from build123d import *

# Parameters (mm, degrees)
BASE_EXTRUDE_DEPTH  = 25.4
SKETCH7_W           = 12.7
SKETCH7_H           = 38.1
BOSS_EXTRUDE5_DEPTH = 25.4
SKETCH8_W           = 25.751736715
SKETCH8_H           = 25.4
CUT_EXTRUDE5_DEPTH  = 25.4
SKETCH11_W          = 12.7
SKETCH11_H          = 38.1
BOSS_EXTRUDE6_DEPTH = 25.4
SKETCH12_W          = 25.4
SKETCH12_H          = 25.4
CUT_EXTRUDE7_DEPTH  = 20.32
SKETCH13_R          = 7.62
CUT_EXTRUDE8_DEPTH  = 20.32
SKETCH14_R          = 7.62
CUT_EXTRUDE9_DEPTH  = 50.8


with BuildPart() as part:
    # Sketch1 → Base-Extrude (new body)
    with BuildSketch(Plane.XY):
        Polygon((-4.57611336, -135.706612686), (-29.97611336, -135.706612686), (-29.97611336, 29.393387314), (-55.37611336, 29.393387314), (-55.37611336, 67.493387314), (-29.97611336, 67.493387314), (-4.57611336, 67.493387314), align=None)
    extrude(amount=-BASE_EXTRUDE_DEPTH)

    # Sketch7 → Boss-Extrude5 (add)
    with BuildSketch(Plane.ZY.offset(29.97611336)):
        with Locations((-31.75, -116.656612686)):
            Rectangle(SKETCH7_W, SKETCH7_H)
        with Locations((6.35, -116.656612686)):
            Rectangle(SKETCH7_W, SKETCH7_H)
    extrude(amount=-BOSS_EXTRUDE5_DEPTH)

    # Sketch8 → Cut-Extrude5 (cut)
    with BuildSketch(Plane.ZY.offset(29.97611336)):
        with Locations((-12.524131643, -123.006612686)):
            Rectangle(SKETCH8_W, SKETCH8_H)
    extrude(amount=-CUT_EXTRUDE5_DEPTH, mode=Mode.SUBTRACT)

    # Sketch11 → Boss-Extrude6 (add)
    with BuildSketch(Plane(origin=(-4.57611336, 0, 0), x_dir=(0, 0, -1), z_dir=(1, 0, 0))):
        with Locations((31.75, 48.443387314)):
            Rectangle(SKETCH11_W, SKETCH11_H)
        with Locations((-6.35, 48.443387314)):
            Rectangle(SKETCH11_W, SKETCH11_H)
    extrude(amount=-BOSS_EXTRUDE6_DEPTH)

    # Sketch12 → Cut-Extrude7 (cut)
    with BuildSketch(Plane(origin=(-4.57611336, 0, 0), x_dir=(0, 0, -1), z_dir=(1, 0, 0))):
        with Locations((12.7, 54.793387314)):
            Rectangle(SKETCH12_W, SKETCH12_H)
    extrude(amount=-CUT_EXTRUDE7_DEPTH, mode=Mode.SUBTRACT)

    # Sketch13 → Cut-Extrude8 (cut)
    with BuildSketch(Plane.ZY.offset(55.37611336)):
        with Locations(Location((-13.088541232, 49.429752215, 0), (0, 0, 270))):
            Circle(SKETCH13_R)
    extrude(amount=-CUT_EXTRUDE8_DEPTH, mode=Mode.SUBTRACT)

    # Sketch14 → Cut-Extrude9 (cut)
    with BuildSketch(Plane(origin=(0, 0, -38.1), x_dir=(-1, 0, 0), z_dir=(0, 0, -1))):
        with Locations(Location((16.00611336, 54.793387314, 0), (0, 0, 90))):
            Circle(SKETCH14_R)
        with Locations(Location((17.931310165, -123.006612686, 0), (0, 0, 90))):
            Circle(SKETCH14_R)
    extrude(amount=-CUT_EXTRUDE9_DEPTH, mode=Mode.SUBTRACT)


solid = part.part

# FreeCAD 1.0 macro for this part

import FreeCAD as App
import Part
import Sketcher
from FreeCAD import Vector
Q = App.Units.Quantity


def add_polygon(sketch, points):
    """Adds a closed chain of lines whose ends are joined by coincident constraints."""
    first, n = sketch.GeometryCount, len(points)
    for a, b in zip(points, points[1:] + points[:1]):
        sketch.addGeometry(Part.LineSegment(App.Vector(*a, 0), App.Vector(*b, 0)), False)
    for i in range(n):
        sketch.addConstraint(Sketcher.Constraint("Coincident", first + i, 2, first + (i + 1) % n, 1))

doc = App.newDocument("Part")
body = doc.addObject("PartDesign::Body", "Body")

# Sketch on XY plane
sketch1 = body.newObject("Sketcher::SketchObject", "Sketch")
sketch1.AttachmentSupport = (doc.getObject("XY_Plane"), [""])
sketch1.MapMode = "FlatFace"
add_polygon(sketch1, [(-29.976113, -135.706613), (-4.576113, -135.706613), (-4.576113, 67.493387), (-55.376113, 67.493387), (-55.376113, 29.393387), (-29.976113, 29.393387)])  # lines 0-5
sketch1.addConstraint([
    Sketcher.Constraint("Horizontal", 0),
    Sketcher.Constraint("Vertical", 1),
    Sketcher.Constraint("Horizontal", 2),
    Sketcher.Constraint("Vertical", 3),
    Sketcher.Constraint("Horizontal", 4),
    Sketcher.Constraint("Vertical", 5),
    Sketcher.Constraint("Equal", 0, 4),
    Sketcher.Constraint("DistanceX", 0, 1, 0, 2, Q("1 in")),
    Sketcher.Constraint("DistanceY", 1, 1, 1, 2, Q("8 in")),
    Sketcher.Constraint("DistanceY", 3, 2, 3, 1, Q("1.5 in")),
    Sketcher.Constraint("DistanceX", 0, 2, -1, 1, Q("4.576113 mm")),
    Sketcher.Constraint("DistanceY", 0, 2, -1, 1, Q("135.706613 mm")),
])
pad1 = body.newObject("PartDesign::Pad", "Pad")
pad1.Profile = sketch1
pad1.Length = Q("1 in")
pad1.Reversed = True

# Sketch on YZ plane
sketch2 = body.newObject("Sketcher::SketchObject", "Sketch001")
sketch2.AttachmentSupport = (doc.getObject("YZ_Plane"), [""])
sketch2.MapMode = "FlatFace"
sketch2.AttachmentOffset = App.Placement(Vector(0, 0, -29.976113), App.Rotation())
add_polygon(sketch2, [(-97.606613, -38.1), (-135.706613, -38.1), (-135.706613, -25.4), (-97.606613, -25.4)])  # lines 0-3
add_polygon(sketch2, [(-97.606613, 0), (-135.706613, 0), (-135.706613, 12.7), (-97.606613, 12.7)])  # lines 4-7
sketch2.addConstraint([
    Sketcher.Constraint("Horizontal", 0),
    Sketcher.Constraint("Vertical", 1),
    Sketcher.Constraint("Horizontal", 2),
    Sketcher.Constraint("Vertical", 3),
    Sketcher.Constraint("Horizontal", 4),
    Sketcher.Constraint("Vertical", 5),
    Sketcher.Constraint("Horizontal", 6),
    Sketcher.Constraint("Vertical", 7),
    Sketcher.Constraint("PointOnObject", 4, 2, -1),
    Sketcher.Constraint("Vertical", 1, 2, 4, 2),
    Sketcher.Constraint("Vertical", 3, 2, 6, 2),
    Sketcher.Constraint("Equal", 3, 5),
    Sketcher.Constraint("DistanceX", 0, 2, 0, 1, Q("1.5 in")),
    Sketcher.Constraint("DistanceY", 1, 1, 1, 2, Q("0.5 in")),
    Sketcher.Constraint("DistanceY", 1, 2, -1, 1, Q("1 in")),
    Sketcher.Constraint("DistanceX", 0, 2, -1, 1, Q("135.706613 mm")),
])
pad2 = body.newObject("PartDesign::Pad", "Pad001")
pad2.Profile = sketch2
pad2.Length = Q("1 in")

# Sketch on YZ plane
sketch3 = body.newObject("Sketcher::SketchObject", "Sketch002")
sketch3.AttachmentSupport = (doc.getObject("YZ_Plane"), [""])
sketch3.MapMode = "FlatFace"
sketch3.AttachmentOffset = App.Placement(Vector(0, 0, -29.976113), App.Rotation())
add_polygon(sketch3, [(-110.306613, -25.4), (-135.706613, -25.4), (-135.706613, 0.351737), (-110.306613, 0.351737)])  # lines 0-3
sketch3.addConstraint([
    Sketcher.Constraint("Horizontal", 0),
    Sketcher.Constraint("Vertical", 1),
    Sketcher.Constraint("Horizontal", 2),
    Sketcher.Constraint("Vertical", 3),
    Sketcher.Constraint("DistanceX", 0, 2, 0, 1, Q("1 in")),
    Sketcher.Constraint("DistanceY", 0, 2, -1, 1, Q("1 in")),
    Sketcher.Constraint("DistanceY", 1, 1, 1, 2, Q("25.751737 mm")),
    Sketcher.Constraint("DistanceX", 0, 2, -1, 1, Q("135.706613 mm")),
])
pocket1 = body.newObject("PartDesign::Pocket", "Pocket")
pocket1.Profile = sketch3
pocket1.Length = Q("1 in")
pocket1.Reversed = True

# Sketch on YZ plane
sketch4 = body.newObject("Sketcher::SketchObject", "Sketch003")
sketch4.AttachmentSupport = (doc.getObject("YZ_Plane"), [""])
sketch4.MapMode = "FlatFace"
sketch4.AttachmentOffset = App.Placement(Vector(0, 0, -4.576113), App.Rotation())
add_polygon(sketch4, [(67.493387, -25.4), (29.393387, -25.4), (29.393387, -38.1), (67.493387, -38.1)])  # lines 0-3
add_polygon(sketch4, [(67.493387, 12.7), (29.393387, 12.7), (29.393387, 0), (67.493387, 0)])  # lines 4-7
sketch4.addConstraint([
    Sketcher.Constraint("Horizontal", 0),
    Sketcher.Constraint("Vertical", 1),
    Sketcher.Constraint("Horizontal", 2),
    Sketcher.Constraint("Vertical", 3),
    Sketcher.Constraint("Horizontal", 4),
    Sketcher.Constraint("Vertical", 5),
    Sketcher.Constraint("Horizontal", 6),
    Sketcher.Constraint("Vertical", 7),
    Sketcher.Constraint("PointOnObject", 5, 2, -1),
    Sketcher.Constraint("Vertical", 1, 2, 4, 2),
    Sketcher.Constraint("Vertical", 3, 2, 6, 2),
    Sketcher.Constraint("Equal", 3, 5),
    Sketcher.Constraint("DistanceX", 0, 2, 0, 1, Q("1.5 in")),
    Sketcher.Constraint("DistanceY", 1, 2, 1, 1, Q("0.5 in")),
    Sketcher.Constraint("DistanceY", 0, 2, -1, 1, Q("1 in")),
    Sketcher.Constraint("DistanceX", -1, 1, 0, 2, Q("29.393387 mm")),
])
pad3 = body.newObject("PartDesign::Pad", "Pad002")
pad3.Profile = sketch4
pad3.Length = Q("1 in")
pad3.Reversed = True

# Sketch on YZ plane
sketch5 = body.newObject("Sketcher::SketchObject", "Sketch004")
sketch5.AttachmentSupport = (doc.getObject("YZ_Plane"), [""])
sketch5.MapMode = "FlatFace"
sketch5.AttachmentOffset = App.Placement(Vector(0, 0, -4.576113), App.Rotation())
add_polygon(sketch5, [(67.493387, 0), (42.093387, 0), (42.093387, -25.4), (67.493387, -25.4)])  # lines 0-3
sketch5.addConstraint([
    Sketcher.Constraint("Horizontal", 0),
    Sketcher.Constraint("Vertical", 1),
    Sketcher.Constraint("Horizontal", 2),
    Sketcher.Constraint("Vertical", 3),
    Sketcher.Constraint("PointOnObject", 0, 2, -1),
    Sketcher.Constraint("Equal", 2, 1),
    Sketcher.Constraint("DistanceX", 0, 2, 0, 1, Q("1 in")),
    Sketcher.Constraint("DistanceX", -1, 1, 0, 2, Q("42.093387 mm")),
])
pocket2 = body.newObject("PartDesign::Pocket", "Pocket001")
pocket2.Profile = sketch5
pocket2.Length = Q("0.8 in")

# Sketch on YZ plane
sketch6 = body.newObject("Sketcher::SketchObject", "Sketch005")
sketch6.AttachmentSupport = (doc.getObject("YZ_Plane"), [""])
sketch6.MapMode = "FlatFace"
sketch6.AttachmentOffset = App.Placement(Vector(0, 0, -55.376113), App.Rotation())
sketch6.addGeometry(Part.Circle(Vector(49.429752, -13.088541, 0), Vector(0, 0, 1), 7.62), False)
sketch6.addConstraint([
    Sketcher.Constraint("Diameter", 0, Q("0.6 in")),
    Sketcher.Constraint("DistanceY", 0, 3, -1, 1, Q("13.088541 mm")),
    Sketcher.Constraint("DistanceX", -1, 1, 0, 3, Q("49.429752 mm")),
])
pocket3 = body.newObject("PartDesign::Pocket", "Pocket002")
pocket3.Profile = sketch6
pocket3.Length = Q("0.8 in")
pocket3.Reversed = True

# Sketch on XY plane
sketch7 = body.newObject("Sketcher::SketchObject", "Sketch006")
sketch7.AttachmentSupport = (doc.getObject("XY_Plane"), [""])
sketch7.MapMode = "FlatFace"
sketch7.AttachmentOffset = App.Placement(Vector(0, 0, -1.5 * 25.4), App.Rotation())
sketch7.addGeometry([
    Part.Circle(Vector(-16.006113, 54.793387, 0), Vector(0, 0, 1), 7.62),
    Part.Circle(Vector(-17.93131, -123.006613, 0), Vector(0, 0, 1), 7.62),
], False)
sketch7.addConstraint([
    Sketcher.Constraint("Equal", 0, 1),
    Sketcher.Constraint("Diameter", 0, Q("0.6 in")),
    Sketcher.Constraint("DistanceY", 1, 3, 0, 3, Q("7 in")),
    Sketcher.Constraint("DistanceX", 1, 3, -1, 1, Q("17.93131 mm")),
    Sketcher.Constraint("DistanceX", 0, 3, -1, 1, Q("16.006113 mm")),
    Sketcher.Constraint("DistanceY", -1, 1, 0, 3, Q("54.793387 mm")),
])
pocket4 = body.newObject("PartDesign::Pocket", "Pocket003")
pocket4.Profile = sketch7
pocket4.Length = Q("2 in")
pocket4.Reversed = True

doc.recompute()
